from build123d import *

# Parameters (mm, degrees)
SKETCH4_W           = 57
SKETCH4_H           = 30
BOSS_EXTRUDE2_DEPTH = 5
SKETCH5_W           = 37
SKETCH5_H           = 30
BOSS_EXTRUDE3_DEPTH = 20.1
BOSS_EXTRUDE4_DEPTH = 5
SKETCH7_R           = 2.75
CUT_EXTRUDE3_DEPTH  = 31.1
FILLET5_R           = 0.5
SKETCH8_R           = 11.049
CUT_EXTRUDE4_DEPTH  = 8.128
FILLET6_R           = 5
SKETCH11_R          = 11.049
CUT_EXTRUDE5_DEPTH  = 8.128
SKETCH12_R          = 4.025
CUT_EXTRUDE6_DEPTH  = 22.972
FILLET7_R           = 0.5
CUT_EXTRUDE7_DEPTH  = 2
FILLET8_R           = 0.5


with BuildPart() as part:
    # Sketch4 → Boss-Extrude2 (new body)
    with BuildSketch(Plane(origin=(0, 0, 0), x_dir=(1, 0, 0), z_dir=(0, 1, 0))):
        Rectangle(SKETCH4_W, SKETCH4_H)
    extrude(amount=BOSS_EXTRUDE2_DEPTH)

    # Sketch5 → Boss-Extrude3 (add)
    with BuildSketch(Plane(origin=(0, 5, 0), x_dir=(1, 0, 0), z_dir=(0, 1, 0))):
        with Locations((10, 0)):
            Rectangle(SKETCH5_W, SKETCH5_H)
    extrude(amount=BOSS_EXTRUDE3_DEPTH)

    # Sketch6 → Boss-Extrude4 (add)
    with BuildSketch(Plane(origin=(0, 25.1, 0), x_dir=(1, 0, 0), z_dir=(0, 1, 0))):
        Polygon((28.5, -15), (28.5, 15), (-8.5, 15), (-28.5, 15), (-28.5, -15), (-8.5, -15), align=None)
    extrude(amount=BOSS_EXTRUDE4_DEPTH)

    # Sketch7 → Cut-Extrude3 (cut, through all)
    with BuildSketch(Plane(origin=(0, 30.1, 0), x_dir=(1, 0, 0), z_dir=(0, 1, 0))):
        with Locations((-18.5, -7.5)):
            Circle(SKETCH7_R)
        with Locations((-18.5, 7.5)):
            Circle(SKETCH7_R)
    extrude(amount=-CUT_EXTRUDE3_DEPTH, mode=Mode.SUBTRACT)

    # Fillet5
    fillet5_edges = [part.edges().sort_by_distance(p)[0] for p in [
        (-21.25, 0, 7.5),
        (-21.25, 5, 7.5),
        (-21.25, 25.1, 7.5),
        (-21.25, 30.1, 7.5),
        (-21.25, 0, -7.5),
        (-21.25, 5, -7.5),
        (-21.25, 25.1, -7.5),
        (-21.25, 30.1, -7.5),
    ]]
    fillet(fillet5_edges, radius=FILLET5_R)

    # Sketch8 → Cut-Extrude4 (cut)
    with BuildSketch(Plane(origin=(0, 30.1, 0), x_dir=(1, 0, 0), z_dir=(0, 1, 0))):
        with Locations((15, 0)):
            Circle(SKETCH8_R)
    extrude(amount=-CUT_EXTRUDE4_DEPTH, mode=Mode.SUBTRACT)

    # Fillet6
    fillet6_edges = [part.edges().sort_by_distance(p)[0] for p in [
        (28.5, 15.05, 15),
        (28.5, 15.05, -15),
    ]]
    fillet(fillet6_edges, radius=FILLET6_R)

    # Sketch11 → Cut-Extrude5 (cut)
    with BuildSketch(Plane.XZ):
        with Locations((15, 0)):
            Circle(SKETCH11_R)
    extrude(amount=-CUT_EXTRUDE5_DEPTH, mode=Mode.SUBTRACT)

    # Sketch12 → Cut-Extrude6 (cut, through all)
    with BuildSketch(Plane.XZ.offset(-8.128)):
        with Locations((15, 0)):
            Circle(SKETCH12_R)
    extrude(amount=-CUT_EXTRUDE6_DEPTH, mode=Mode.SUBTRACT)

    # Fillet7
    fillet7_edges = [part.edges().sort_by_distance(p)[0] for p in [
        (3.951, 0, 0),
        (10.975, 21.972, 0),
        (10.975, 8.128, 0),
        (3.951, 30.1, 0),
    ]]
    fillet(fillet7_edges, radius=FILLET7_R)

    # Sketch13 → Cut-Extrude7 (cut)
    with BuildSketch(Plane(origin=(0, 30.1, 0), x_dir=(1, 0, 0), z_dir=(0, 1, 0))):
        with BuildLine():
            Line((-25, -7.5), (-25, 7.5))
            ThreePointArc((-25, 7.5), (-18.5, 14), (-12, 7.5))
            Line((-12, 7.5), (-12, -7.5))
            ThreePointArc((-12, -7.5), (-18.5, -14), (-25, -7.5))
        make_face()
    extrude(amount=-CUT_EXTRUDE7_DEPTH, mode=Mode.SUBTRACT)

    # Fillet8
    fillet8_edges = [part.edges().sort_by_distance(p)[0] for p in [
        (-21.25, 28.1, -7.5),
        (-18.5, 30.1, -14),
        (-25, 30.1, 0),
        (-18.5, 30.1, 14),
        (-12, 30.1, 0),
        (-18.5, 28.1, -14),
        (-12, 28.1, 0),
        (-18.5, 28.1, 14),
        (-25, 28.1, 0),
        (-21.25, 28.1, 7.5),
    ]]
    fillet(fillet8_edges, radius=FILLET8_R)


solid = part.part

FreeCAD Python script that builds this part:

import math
import FreeCAD as App
import Part
import Sketcher
from FreeCAD import Vector
Q = App.Units.Quantity


def edges_at(feature, points):
    """Names of the edges that pass closest to the given points."""
    edges = feature.Shape.Edges
    near = lambda p: min(range(len(edges)), key=lambda i: edges[i].distToShape(Part.Vertex(*p))[0])
    return sorted({f"Edge{near(p) + 1}" for p in points})


def add_polygon(sketch, points):
    """Adds a closed chain of lines whose ends are joined by coincident constraints."""
    first, n = sketch.GeometryCount, len(points)
    for a, b in zip(points, points[1:] + points[:1]):
        sketch.addGeometry(Part.LineSegment(App.Vector(*a, 0), App.Vector(*b, 0)), False)
    for i in range(n):
        sketch.addConstraint(Sketcher.Constraint("Coincident", first + i, 2, first + (i + 1) % n, 1))

doc = App.newDocument("Part")
body = doc.addObject("PartDesign::Body", "Body")

# Sketch on XZ plane
sketch1 = doc.addObject("Sketcher::SketchObject", "Sketch")
body.addObject(sketch1)
sketch1.AttachmentSupport = (doc.XZ_Plane, [""])
sketch1.MapMode = "FlatFace"
add_polygon(sketch1, [(-28.5, -15), (-28.5, 15), (28.5, 15), (28.5, -15)])  # lines 0-3
sketch1.addConstraint([
    Sketcher.Constraint("Vertical", 0),
    Sketcher.Constraint("Horizontal", 1),
    Sketcher.Constraint("Vertical", 2),
    Sketcher.Constraint("Horizontal", 3),
    Sketcher.Constraint("Symmetric", 0, 2, 2, 2, -1, 1),
    Sketcher.Constraint("DistanceX", 1, 1, 1, 2, Q("57 mm")),
    Sketcher.Constraint("DistanceY", 0, 1, 0, 2, Q("30 mm")),
])
pad1 = doc.addObject("PartDesign::Pad", "Pad")
body.addObject(pad1)
pad1.Profile = sketch1
pad1.Length = 5
pad1.Reversed = True

# Sketch on XZ plane
sketch2 = doc.addObject("Sketcher::SketchObject", "Sketch001")
body.addObject(sketch2)
sketch2.AttachmentSupport = (doc.XZ_Plane, [""])
sketch2.MapMode = "FlatFace"
sketch2.AttachmentOffset = App.Placement(Vector(0, 0, -5), App.Rotation())
add_polygon(sketch2, [(-8.5, -15), (-8.5, 15), (28.5, 15), (28.5, -15)])  # lines 0-3
sketch2.addConstraint([
    Sketcher.Constraint("Vertical", 0),
    Sketcher.Constraint("Horizontal", 1),
    Sketcher.Constraint("Vertical", 2),
    Sketcher.Constraint("Horizontal", 3),
    Sketcher.Constraint("DistanceX", 1, 1, 1, 2, Q("37 mm")),
    Sketcher.Constraint("DistanceY", 0, 1, 0, 2, Q("30 mm")),
    Sketcher.Constraint("DistanceY", -1, 1, 0, 2, Q("15 mm")),
    Sketcher.Constraint("DistanceX", 0, 2, -1, 1, Q("8.5 mm")),
])
pad2 = doc.addObject("PartDesign::Pad", "Pad001")
body.addObject(pad2)
pad2.Profile = sketch2
pad2.Length = 20.1
pad2.Reversed = True

# Sketch on XZ plane
sketch3 = doc.addObject("Sketcher::SketchObject", "Sketch002")
body.addObject(sketch3)
sketch3.AttachmentSupport = (doc.XZ_Plane, [""])
sketch3.MapMode = "FlatFace"
sketch3.AttachmentOffset = App.Placement(Vector(0, 0, -25.1), App.Rotation())
add_polygon(sketch3, [(28.5, 15), (28.5, -15), (-28.5, -15), (-28.5, 15)])  # lines 0-3
sketch3.addConstraint([
    Sketcher.Constraint("Vertical", 0),
    Sketcher.Constraint("Horizontal", 1),
    Sketcher.Constraint("Vertical", 2),
    Sketcher.Constraint("Horizontal", 3),
    Sketcher.Constraint("Symmetric", 0, 2, 2, 2, -1, 1),
    Sketcher.Constraint("DistanceX", 1, 2, 1, 1, Q("57 mm")),
    Sketcher.Constraint("DistanceY", 0, 2, 0, 1, Q("30 mm")),
])
pad3 = doc.addObject("PartDesign::Pad", "Pad002")
body.addObject(pad3)
pad3.Profile = sketch3
pad3.Length = 5
pad3.Reversed = True

# Sketch on XZ plane
sketch4 = doc.addObject("Sketcher::SketchObject", "Sketch003")
body.addObject(sketch4)
sketch4.AttachmentSupport = (doc.XZ_Plane, [""])
sketch4.MapMode = "FlatFace"
sketch4.AttachmentOffset = App.Placement(Vector(0, 0, -30.1), App.Rotation())
sketch4.addGeometry([
    Part.Circle(Vector(-18.5, 7.5, 0), Vector(0, 0, 1), 2.75),
    Part.Circle(Vector(-18.5, -7.5, 0), Vector(0, 0, 1), 2.75),
], False)
sketch4.addConstraint([
    Sketcher.Constraint("Equal", 0, 1),
    Sketcher.Constraint("Symmetric", 0, 3, 1, 3, -1),
    Sketcher.Constraint("Diameter", 0, Q("5.5 mm")),
    Sketcher.Constraint("DistanceY", 1, 3, 0, 3, Q("15 mm")),
    Sketcher.Constraint("DistanceX", 0, 3, -1, 1, Q("18.5 mm")),
])
pocket1 = doc.addObject("PartDesign::Pocket", "Pocket")
body.addObject(pocket1)
pocket1.Profile = sketch4
pocket1.Type = "ThroughAll"
pocket1.Reversed = True
doc.recompute()

fillet = doc.addObject("PartDesign::Fillet", "Fillet")
body.addObject(fillet)
fillet.Base = (pocket1, edges_at(pocket1, [
    (-21.25, 0, 7.5),
    (-21.25, 5, 7.5),
    (-21.25, 25.1, 7.5),
    (-21.25, 30.1, 7.5),
    (-21.25, 0, -7.5),
    (-21.25, 5, -7.5),
    (-21.25, 25.1, -7.5),
    (-21.25, 30.1, -7.5),
]))
fillet.Radius = 0.5

# Sketch on XZ plane
sketch5 = doc.addObject("Sketcher::SketchObject", "Sketch004")
body.addObject(sketch5)
sketch5.AttachmentSupport = (doc.XZ_Plane, [""])
sketch5.MapMode = "FlatFace"
sketch5.AttachmentOffset = App.Placement(Vector(0, 0, -30.1), App.Rotation())
sketch5.addGeometry(Part.Circle(Vector(15, 0, 0), Vector(0, 0, 1), 11.049), False)
sketch5.addConstraint([
    Sketcher.Constraint("PointOnObject", 0, 3, -1),
    Sketcher.Constraint("Diameter", 0, Q("22.098 mm")),
    Sketcher.Constraint("DistanceX", -1, 1, 0, 3, Q("15 mm")),
])
pocket2 = doc.addObject("PartDesign::Pocket", "Pocket001")
body.addObject(pocket2)
pocket2.Profile = sketch5
pocket2.Length = 8.128
pocket2.Reversed = True
doc.recompute()

fillet2 = doc.addObject("PartDesign::Fillet", "Fillet001")
body.addObject(fillet2)
fillet2.Base = (pocket2, edges_at(pocket2, [(28.5, 15.05, 15), (28.5, 15.05, -15)]))
fillet2.Radius = 5

# Sketch on XZ plane
sketch6 = doc.addObject("Sketcher::SketchObject", "Sketch005")
body.addObject(sketch6)
sketch6.AttachmentSupport = (doc.XZ_Plane, [""])
sketch6.MapMode = "FlatFace"
sketch6.addGeometry(Part.Circle(Vector(15, 0, 0), Vector(0, 0, 1), 11.049), False)
sketch6.addConstraint([
    Sketcher.Constraint("PointOnObject", 0, 3, -1),
    Sketcher.Constraint("Diameter", 0, Q("22.098 mm")),
    Sketcher.Constraint("DistanceX", -1, 1, 0, 3, Q("15 mm")),
])
pocket3 = doc.addObject("PartDesign::Pocket", "Pocket002")
body.addObject(pocket3)
pocket3.Profile = sketch6
pocket3.Length = 8.128

# Sketch on XZ plane
sketch7 = doc.addObject("Sketcher::SketchObject", "Sketch006")
body.addObject(sketch7)
sketch7.AttachmentSupport = (doc.XZ_Plane, [""])
sketch7.MapMode = "FlatFace"
sketch7.AttachmentOffset = App.Placement(Vector(0, 0, -8.128), App.Rotation())
sketch7.addGeometry(Part.Circle(Vector(15, 0, 0), Vector(0, 0, 1), 4.025), False)
sketch7.addConstraint([
    Sketcher.Constraint("PointOnObject", 0, 3, -1),
    Sketcher.Constraint("Diameter", 0, Q("8.05 mm")),
    Sketcher.Constraint("DistanceX", -1, 1, 0, 3, Q("15 mm")),
])
pocket4 = doc.addObject("PartDesign::Pocket", "Pocket003")
body.addObject(pocket4)
pocket4.Profile = sketch7
pocket4.Type = "ThroughAll"
doc.recompute()

fillet3 = doc.addObject("PartDesign::Fillet", "Fillet002")
body.addObject(fillet3)
fillet3.Base = (pocket4, edges_at(pocket4, [
    (3.951, 0, 0),
    (10.975, 21.972, 0),
    (10.975, 8.128, 0),
    (3.951, 30.1, 0),
]))
fillet3.Radius = 0.5

# Sketch on XZ plane
sketch8 = doc.addObject("Sketcher::SketchObject", "Sketch007")
body.addObject(sketch8)
sketch8.AttachmentSupport = (doc.XZ_Plane, [""])
sketch8.MapMode = "FlatFace"
sketch8.AttachmentOffset = App.Placement(Vector(0, 0, -30.1), App.Rotation())
sketch8.addGeometry([
    Part.LineSegment(Vector(-25, -7.5, 0), Vector(-25, 7.5, 0)),
    Part.ArcOfCircle(Part.Circle(Vector(-18.5, 7.5, 0), Vector(0, 0, 1), 6.5), math.radians(0), math.radians(180)),
    Part.LineSegment(Vector(-12, 7.5, 0), Vector(-12, -7.5, 0)),
    Part.ArcOfCircle(Part.Circle(Vector(-18.5, -7.5, 0), Vector(0, 0, 1), 6.5), math.radians(180), math.radians(360)),
], False)
sketch8.addConstraint([
    Sketcher.Constraint("Tangent", 0, 2, 1, 2),
    Sketcher.Constraint("Tangent", 1, 1, 2, 1),
    Sketcher.Constraint("Tangent", 2, 2, 3, 2),
    Sketcher.Constraint("Tangent", 3, 1, 0, 1),
    Sketcher.Constraint("Vertical", 0),
    Sketcher.Constraint("Vertical", 2),
    Sketcher.Constraint("Radius", 1, Q("6.5 mm")),
    Sketcher.Constraint("DistanceY", 0, 1, 0, 2, Q("15 mm")),
    Sketcher.Constraint("DistanceX", 0, 2, -1, 1, Q("25 mm")),
    Sketcher.Constraint("DistanceY", -1, 1, 1, 3, Q("7.5 mm")),
])
pocket5 = doc.addObject("PartDesign::Pocket", "Pocket004")
body.addObject(pocket5)
pocket5.Profile = sketch8
pocket5.Length = 2
pocket5.Reversed = True
doc.recompute()

fillet4 = doc.addObject("PartDesign::Fillet", "Fillet003")
body.addObject(fillet4)
fillet4.Base = (pocket5, edges_at(pocket5, [
    (-21.25, 28.1, -7.5),
    (-18.5, 30.1, -14),
    (-25, 30.1, 0),
    (-18.5, 30.1, 14),
    (-12, 30.1, 0),
    (-18.5, 28.1, -14),
    (-12, 28.1, 0),
    (-18.5, 28.1, 14),
    (-25, 28.1, 0),
    (-21.25, 28.1, 7.5),
]))
fillet4.Radius = 0.5

doc.recompute()
